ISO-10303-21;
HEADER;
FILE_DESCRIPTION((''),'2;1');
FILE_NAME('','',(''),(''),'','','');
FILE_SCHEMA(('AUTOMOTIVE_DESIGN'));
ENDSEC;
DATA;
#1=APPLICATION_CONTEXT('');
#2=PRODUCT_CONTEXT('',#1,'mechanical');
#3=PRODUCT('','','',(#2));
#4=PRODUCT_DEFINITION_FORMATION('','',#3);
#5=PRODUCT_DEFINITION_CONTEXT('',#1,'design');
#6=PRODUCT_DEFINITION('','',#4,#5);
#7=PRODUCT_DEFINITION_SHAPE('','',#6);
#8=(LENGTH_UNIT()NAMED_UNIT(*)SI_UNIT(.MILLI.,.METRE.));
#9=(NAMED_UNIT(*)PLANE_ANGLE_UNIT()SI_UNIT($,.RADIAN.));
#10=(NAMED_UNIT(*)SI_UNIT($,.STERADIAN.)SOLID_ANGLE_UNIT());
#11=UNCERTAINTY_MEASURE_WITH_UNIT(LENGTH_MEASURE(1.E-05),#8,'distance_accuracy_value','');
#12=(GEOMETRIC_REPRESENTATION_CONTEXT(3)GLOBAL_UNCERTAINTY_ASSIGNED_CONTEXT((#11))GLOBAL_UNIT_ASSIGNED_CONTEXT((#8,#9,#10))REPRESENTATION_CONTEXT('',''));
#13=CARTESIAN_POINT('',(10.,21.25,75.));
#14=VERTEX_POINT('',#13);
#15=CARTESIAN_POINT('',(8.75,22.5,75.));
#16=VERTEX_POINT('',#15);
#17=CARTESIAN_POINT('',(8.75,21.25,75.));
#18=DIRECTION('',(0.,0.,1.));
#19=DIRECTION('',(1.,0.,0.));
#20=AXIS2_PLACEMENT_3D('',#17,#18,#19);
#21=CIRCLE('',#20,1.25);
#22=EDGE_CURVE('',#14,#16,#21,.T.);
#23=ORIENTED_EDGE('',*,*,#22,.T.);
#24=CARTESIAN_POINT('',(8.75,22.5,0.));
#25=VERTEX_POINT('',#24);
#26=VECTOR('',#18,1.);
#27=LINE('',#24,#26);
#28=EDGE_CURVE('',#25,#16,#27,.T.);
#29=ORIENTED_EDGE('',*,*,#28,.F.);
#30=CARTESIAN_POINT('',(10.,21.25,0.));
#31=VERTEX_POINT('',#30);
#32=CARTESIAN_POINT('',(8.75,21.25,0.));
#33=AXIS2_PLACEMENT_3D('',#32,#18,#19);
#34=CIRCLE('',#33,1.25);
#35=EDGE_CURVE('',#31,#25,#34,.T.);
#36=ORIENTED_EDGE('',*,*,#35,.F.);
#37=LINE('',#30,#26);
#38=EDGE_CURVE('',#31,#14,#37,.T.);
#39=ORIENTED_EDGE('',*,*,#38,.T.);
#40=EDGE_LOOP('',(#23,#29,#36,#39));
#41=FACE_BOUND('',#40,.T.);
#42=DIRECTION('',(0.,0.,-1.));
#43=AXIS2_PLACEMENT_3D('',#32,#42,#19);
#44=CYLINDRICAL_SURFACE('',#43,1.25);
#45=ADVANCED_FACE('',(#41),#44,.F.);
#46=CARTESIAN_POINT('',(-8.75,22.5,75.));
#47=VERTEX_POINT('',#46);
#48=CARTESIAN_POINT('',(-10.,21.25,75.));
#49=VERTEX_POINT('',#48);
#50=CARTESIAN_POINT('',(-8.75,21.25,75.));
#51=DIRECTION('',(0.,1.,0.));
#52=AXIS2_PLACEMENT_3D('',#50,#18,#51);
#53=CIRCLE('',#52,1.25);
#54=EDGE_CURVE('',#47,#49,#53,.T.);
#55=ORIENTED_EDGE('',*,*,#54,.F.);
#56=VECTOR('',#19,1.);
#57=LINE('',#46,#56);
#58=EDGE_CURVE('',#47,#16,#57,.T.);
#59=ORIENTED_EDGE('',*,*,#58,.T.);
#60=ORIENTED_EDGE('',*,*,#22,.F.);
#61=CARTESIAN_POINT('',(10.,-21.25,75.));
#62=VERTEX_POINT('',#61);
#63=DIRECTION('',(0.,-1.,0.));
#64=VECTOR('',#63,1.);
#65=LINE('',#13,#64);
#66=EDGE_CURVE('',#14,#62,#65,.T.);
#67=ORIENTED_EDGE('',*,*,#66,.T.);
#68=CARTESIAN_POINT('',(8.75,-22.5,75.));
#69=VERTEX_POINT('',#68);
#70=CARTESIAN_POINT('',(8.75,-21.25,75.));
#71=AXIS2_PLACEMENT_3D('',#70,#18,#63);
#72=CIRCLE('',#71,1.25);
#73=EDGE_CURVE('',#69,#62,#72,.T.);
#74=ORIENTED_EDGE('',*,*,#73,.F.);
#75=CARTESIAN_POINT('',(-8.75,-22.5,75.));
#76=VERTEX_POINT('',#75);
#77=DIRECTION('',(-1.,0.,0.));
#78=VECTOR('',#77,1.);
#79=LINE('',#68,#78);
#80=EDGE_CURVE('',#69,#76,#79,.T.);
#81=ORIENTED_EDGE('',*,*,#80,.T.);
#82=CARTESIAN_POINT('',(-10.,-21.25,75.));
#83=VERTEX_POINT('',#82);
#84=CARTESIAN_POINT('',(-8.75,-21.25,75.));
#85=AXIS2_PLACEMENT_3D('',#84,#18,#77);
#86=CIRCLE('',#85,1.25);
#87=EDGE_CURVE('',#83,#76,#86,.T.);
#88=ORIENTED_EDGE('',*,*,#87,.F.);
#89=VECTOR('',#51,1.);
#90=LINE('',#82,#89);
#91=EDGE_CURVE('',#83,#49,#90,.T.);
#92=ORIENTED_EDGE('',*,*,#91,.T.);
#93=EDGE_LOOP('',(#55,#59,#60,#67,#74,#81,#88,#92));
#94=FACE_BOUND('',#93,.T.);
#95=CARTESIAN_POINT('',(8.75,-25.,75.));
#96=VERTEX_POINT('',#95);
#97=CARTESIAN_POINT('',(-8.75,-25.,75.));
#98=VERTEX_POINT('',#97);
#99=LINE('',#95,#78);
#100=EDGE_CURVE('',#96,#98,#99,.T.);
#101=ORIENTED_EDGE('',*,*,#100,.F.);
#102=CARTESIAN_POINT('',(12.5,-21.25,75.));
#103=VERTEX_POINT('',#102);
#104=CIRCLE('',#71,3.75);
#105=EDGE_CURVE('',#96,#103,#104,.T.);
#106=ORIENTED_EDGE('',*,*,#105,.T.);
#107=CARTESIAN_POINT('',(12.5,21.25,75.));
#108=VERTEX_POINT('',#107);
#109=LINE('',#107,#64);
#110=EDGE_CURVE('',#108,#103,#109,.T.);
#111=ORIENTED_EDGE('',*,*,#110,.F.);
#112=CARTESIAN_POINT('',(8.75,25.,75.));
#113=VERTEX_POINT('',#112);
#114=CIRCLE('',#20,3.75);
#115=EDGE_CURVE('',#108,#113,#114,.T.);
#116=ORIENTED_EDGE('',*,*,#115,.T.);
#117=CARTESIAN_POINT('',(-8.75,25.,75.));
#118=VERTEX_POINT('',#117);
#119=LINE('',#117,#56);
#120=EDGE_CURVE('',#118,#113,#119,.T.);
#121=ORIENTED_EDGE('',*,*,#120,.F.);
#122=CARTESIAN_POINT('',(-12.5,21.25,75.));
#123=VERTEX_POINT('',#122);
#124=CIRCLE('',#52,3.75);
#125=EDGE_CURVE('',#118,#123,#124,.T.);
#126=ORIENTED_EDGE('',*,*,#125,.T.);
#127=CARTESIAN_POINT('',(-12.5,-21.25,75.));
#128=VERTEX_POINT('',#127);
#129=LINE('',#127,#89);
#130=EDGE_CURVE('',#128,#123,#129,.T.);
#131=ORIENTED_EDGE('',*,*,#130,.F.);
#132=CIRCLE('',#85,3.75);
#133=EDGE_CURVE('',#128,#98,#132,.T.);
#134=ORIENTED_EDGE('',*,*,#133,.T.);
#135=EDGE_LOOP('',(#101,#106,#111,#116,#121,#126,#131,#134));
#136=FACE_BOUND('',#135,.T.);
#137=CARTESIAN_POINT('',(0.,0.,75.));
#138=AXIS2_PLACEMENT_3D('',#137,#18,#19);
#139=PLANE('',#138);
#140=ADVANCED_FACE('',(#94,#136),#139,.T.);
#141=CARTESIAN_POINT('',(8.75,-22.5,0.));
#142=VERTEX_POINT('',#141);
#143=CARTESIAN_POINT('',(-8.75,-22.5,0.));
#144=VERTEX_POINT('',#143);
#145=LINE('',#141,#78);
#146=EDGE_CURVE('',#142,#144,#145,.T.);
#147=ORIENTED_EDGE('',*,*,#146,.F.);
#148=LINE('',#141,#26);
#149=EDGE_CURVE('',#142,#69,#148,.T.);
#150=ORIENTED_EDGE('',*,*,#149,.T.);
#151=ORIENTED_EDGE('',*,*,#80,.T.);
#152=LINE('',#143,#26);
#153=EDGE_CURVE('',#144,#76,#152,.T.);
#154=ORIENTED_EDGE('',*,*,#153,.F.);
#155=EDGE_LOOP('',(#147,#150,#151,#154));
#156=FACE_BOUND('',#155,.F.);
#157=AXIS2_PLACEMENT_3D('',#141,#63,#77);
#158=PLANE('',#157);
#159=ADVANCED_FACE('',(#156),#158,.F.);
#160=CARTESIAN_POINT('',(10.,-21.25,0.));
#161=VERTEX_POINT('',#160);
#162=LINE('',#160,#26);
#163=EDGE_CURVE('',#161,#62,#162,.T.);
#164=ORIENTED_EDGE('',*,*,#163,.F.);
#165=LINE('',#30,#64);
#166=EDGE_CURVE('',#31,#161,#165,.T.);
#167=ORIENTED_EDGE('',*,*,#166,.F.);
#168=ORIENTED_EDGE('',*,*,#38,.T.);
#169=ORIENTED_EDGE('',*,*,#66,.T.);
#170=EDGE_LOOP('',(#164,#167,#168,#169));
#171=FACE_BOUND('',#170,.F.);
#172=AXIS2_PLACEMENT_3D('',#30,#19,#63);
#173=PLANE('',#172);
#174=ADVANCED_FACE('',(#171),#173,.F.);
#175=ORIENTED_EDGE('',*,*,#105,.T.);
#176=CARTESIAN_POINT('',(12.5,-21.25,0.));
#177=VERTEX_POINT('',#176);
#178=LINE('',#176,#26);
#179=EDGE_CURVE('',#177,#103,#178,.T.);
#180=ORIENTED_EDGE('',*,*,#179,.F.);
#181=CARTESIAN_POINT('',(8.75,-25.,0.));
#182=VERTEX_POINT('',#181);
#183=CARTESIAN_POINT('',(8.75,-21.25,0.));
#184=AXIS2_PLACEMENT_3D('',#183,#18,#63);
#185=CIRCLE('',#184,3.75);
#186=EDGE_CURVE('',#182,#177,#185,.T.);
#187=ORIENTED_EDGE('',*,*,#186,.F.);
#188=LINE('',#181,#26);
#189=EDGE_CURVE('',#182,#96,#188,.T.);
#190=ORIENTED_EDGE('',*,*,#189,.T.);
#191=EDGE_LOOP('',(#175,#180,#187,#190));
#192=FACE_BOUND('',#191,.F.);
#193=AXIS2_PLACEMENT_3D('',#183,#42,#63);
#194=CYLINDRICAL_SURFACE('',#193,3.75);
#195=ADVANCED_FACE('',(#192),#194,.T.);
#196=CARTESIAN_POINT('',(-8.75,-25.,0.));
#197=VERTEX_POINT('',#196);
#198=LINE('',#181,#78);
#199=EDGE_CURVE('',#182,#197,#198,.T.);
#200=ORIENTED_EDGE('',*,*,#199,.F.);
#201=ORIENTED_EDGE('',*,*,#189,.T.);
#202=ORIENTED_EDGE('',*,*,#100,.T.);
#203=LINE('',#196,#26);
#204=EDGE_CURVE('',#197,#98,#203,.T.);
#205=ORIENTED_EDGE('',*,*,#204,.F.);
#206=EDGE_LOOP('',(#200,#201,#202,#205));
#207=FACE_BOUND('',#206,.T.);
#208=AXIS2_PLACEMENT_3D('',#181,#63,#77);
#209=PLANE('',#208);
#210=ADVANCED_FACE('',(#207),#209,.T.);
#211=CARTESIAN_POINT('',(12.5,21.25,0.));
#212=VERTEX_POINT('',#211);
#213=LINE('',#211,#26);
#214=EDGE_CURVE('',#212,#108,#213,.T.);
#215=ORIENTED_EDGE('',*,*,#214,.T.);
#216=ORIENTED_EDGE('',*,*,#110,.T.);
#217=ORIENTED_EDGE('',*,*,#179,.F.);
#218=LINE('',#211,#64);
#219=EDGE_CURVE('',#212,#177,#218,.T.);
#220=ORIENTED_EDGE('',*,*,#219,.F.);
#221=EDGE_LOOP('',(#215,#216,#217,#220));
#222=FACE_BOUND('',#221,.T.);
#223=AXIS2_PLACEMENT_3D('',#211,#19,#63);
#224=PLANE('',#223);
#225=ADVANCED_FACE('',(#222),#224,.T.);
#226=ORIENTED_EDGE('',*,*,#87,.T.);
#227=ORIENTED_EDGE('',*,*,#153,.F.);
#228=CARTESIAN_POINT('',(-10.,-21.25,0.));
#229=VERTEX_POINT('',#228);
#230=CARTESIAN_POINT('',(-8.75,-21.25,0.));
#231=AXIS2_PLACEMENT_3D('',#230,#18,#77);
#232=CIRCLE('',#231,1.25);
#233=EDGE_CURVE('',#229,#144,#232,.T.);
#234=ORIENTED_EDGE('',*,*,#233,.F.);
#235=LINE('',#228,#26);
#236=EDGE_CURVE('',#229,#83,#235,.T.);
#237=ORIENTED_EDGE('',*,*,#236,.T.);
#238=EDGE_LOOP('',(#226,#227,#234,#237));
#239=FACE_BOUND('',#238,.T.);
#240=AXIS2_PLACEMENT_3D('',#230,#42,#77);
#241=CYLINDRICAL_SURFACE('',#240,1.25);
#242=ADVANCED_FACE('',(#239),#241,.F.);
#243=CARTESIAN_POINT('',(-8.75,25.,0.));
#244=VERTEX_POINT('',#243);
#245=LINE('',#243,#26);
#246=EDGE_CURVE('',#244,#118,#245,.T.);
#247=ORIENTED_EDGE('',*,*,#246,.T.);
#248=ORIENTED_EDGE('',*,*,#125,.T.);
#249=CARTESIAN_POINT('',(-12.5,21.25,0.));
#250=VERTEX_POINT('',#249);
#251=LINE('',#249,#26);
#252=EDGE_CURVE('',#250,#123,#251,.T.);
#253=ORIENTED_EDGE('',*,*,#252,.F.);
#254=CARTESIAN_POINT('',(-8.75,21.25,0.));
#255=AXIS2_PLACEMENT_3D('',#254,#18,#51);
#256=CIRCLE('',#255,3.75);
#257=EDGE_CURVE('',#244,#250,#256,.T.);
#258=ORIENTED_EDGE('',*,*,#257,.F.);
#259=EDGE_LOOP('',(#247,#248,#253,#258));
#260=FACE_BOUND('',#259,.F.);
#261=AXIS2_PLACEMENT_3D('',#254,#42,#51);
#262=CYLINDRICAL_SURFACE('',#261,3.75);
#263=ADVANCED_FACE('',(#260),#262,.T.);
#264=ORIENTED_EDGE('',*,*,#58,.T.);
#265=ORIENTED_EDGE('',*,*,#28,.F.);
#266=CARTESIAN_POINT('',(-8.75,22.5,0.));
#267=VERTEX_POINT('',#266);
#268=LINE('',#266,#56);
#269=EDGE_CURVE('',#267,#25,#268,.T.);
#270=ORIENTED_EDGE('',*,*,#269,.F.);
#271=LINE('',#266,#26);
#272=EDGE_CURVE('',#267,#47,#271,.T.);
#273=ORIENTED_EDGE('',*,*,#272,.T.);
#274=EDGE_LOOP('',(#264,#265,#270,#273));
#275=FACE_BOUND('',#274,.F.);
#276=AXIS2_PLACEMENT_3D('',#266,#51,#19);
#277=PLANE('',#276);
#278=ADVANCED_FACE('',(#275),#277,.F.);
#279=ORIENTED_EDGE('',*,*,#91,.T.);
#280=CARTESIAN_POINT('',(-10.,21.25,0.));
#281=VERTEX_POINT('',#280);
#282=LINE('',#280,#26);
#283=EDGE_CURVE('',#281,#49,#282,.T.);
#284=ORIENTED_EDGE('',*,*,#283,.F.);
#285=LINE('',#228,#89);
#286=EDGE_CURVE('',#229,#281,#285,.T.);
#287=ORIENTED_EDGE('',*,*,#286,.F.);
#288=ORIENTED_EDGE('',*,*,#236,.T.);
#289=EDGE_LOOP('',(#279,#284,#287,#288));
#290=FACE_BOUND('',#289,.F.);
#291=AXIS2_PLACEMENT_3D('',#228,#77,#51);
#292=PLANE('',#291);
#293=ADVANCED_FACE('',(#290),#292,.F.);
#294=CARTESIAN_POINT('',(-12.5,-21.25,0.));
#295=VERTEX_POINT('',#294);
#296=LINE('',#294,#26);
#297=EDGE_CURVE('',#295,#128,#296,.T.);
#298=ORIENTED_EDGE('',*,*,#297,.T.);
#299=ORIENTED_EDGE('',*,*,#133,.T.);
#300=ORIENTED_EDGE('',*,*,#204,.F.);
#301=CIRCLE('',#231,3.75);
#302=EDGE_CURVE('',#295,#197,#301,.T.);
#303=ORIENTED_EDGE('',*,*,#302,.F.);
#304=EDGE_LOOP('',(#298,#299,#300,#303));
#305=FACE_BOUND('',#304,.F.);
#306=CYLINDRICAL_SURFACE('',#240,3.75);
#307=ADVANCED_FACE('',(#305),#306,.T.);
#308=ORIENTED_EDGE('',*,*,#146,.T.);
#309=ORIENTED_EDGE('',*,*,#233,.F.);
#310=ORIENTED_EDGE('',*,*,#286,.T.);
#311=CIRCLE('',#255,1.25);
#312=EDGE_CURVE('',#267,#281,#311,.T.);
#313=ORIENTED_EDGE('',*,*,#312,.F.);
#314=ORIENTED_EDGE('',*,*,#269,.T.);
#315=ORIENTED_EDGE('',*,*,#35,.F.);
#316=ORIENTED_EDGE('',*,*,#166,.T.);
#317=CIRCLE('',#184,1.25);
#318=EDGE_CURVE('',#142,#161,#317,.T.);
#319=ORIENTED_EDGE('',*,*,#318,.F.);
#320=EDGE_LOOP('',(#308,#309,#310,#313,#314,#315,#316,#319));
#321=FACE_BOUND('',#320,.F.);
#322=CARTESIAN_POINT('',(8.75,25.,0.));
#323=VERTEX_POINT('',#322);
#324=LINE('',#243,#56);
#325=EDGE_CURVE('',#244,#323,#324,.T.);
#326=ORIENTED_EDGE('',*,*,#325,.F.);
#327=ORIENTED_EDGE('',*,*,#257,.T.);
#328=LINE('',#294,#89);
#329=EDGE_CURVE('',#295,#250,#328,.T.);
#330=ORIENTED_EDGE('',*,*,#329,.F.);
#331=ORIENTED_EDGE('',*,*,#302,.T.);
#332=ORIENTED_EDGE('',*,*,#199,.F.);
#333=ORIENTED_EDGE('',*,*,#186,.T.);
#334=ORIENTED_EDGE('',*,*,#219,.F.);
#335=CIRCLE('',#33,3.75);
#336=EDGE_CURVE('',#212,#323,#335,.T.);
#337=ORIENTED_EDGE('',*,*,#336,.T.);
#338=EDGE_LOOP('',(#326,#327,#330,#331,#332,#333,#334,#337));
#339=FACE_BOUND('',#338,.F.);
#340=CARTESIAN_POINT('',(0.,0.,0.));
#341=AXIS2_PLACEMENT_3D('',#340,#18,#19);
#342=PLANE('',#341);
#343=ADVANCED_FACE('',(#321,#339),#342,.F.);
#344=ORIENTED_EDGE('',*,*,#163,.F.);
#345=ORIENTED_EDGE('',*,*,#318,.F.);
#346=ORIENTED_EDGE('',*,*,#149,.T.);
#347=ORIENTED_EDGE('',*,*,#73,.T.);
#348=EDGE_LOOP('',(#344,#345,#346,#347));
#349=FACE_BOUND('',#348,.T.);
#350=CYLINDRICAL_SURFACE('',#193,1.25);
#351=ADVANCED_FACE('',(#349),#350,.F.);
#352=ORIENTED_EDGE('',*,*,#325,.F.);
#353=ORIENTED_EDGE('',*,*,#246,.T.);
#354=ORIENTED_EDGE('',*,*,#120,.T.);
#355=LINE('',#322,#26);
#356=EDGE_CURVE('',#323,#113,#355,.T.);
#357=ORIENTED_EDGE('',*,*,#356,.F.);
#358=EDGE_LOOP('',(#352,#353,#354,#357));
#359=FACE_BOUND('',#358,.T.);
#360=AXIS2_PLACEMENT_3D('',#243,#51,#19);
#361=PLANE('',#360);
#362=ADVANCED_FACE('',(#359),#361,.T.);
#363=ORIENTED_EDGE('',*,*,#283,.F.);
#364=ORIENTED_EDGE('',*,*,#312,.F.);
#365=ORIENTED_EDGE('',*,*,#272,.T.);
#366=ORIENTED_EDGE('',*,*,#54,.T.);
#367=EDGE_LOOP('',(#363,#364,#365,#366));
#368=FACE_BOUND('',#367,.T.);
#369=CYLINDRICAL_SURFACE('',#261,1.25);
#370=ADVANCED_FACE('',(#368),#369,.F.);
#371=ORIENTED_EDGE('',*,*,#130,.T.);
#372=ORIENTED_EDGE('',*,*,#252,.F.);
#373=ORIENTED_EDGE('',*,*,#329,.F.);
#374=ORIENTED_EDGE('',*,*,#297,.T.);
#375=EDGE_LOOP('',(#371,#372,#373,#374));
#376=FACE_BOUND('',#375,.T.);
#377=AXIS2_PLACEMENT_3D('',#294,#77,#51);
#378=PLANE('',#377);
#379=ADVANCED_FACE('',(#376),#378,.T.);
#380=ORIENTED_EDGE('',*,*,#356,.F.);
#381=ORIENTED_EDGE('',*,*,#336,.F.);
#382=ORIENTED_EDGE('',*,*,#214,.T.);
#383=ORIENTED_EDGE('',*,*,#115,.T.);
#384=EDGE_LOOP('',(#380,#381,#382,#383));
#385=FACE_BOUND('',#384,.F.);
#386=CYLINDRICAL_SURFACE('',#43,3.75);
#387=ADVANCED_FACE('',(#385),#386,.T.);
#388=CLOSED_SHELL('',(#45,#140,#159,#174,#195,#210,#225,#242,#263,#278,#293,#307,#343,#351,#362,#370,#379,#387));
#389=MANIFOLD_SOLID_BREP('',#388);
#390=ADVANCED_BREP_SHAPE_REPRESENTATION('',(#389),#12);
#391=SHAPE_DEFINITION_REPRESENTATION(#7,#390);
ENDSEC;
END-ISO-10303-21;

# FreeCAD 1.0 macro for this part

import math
import FreeCAD as App
import Part
import Sketcher

V = App.Vector
Q = App.Units.Quantity

doc = App.newDocument("Part")
body = doc.addObject("PartDesign::Body", "Body")

sketch1 = body.newObject("Sketcher::SketchObject", "Sketch")
sketch1.AttachmentSupport = (doc.getObject("XY_Plane"), [""])
sketch1.MapMode = "FlatFace"
sketch1.addGeometry(Part.LineSegment(V(-12.5, 21.2, 0), V(-12.5, -21.2, 0)), False)
sketch1.addGeometry(Part.ArcOfCircle(Part.Circle(V(-8.8, -21.2, 0), V(0, 0, 1), 3.8), math.radians(180), math.radians(270)), False)
sketch1.addGeometry(Part.LineSegment(V(-8.8, -25, 0), V(8.8, -25, 0)), False)
sketch1.addGeometry(Part.ArcOfCircle(Part.Circle(V(8.8, -21.2, 0), V(0, 0, 1), 3.8), math.radians(-90), math.radians(0)), False)
sketch1.addGeometry(Part.LineSegment(V(12.5, -21.2, 0), V(12.5, 21.2, 0)), False)
sketch1.addGeometry(Part.ArcOfCircle(Part.Circle(V(8.8, 21.2, 0), V(0, 0, 1), 3.8), math.radians(0), math.radians(90)), False)
sketch1.addGeometry(Part.LineSegment(V(8.8, 25, 0), V(-8.8, 25, 0)), False)
sketch1.addGeometry(Part.ArcOfCircle(Part.Circle(V(-8.8, 21.2, 0), V(0, 0, 1), 3.8), math.radians(90), math.radians(180)), False)
sketch1.addGeometry(Part.ArcOfCircle(Part.Circle(V(-8.8, 21.2, 0), V(0, 0, 1), 1.2), math.radians(90), math.radians(180)), False)
sketch1.addGeometry(Part.LineSegment(V(-8.8, 22.5, 0), V(8.8, 22.5, 0)), False)
sketch1.addGeometry(Part.ArcOfCircle(Part.Circle(V(8.8, 21.2, 0), V(0, 0, 1), 1.2), math.radians(0), math.radians(90)), False)
sketch1.addGeometry(Part.LineSegment(V(10, 21.2, 0), V(10, -21.2, 0)), False)
sketch1.addGeometry(Part.ArcOfCircle(Part.Circle(V(8.8, -21.2, 0), V(0, 0, 1), 1.2), math.radians(-90), math.radians(0)), False)
sketch1.addGeometry(Part.LineSegment(V(8.8, -22.5, 0), V(-8.8, -22.5, 0)), False)
sketch1.addGeometry(Part.ArcOfCircle(Part.Circle(V(-8.8, -21.2, 0), V(0, 0, 1), 1.2), math.radians(180), math.radians(270)), False)
sketch1.addGeometry(Part.LineSegment(V(-10, -21.2, 0), V(-10, 21.2, 0)), False)
sketch1.addConstraint(Sketcher.Constraint("Tangent", 0, 2, 1, 1))
sketch1.addConstraint(Sketcher.Constraint("Tangent", 1, 2, 2, 1))
sketch1.addConstraint(Sketcher.Constraint("Tangent", 2, 2, 3, 1))
sketch1.addConstraint(Sketcher.Constraint("Tangent", 3, 2, 4, 1))
sketch1.addConstraint(Sketcher.Constraint("Tangent", 4, 2, 5, 1))
sketch1.addConstraint(Sketcher.Constraint("Tangent", 5, 2, 6, 1))
sketch1.addConstraint(Sketcher.Constraint("Tangent", 6, 2, 7, 1))
sketch1.addConstraint(Sketcher.Constraint("Tangent", 7, 2, 0, 1))
sketch1.addConstraint(Sketcher.Constraint("Tangent", 8, 1, 9, 1))
sketch1.addConstraint(Sketcher.Constraint("Tangent", 9, 2, 10, 2))
sketch1.addConstraint(Sketcher.Constraint("Tangent", 10, 1, 11, 1))
sketch1.addConstraint(Sketcher.Constraint("Tangent", 11, 2, 12, 2))
sketch1.addConstraint(Sketcher.Constraint("Tangent", 12, 1, 13, 1))
sketch1.addConstraint(Sketcher.Constraint("Tangent", 13, 2, 14, 2))
sketch1.addConstraint(Sketcher.Constraint("Tangent", 14, 1, 15, 1))
sketch1.addConstraint(Sketcher.Constraint("Tangent", 15, 2, 8, 2))
sketch1.addConstraint(Sketcher.Constraint("Vertical", 0))
sketch1.addConstraint(Sketcher.Constraint("Horizontal", 2))
sketch1.addConstraint(Sketcher.Constraint("Vertical", 4))
sketch1.addConstraint(Sketcher.Constraint("Horizontal", 6))
sketch1.addConstraint(Sketcher.Constraint("Horizontal", 9))
sketch1.addConstraint(Sketcher.Constraint("Vertical", 11))
sketch1.addConstraint(Sketcher.Constraint("Horizontal", 13))
sketch1.addConstraint(Sketcher.Constraint("Vertical", 15))
sketch1.addConstraint(Sketcher.Constraint("Coincident", 8, 3, 7, 3))
sketch1.addConstraint(Sketcher.Constraint("Coincident", 10, 3, 5, 3))
sketch1.addConstraint(Sketcher.Constraint("Coincident", 12, 3, 3, 3))
sketch1.addConstraint(Sketcher.Constraint("Equal", 1, 3))
sketch1.addConstraint(Sketcher.Constraint("Equal", 3, 5))
sketch1.addConstraint(Sketcher.Constraint("Equal", 5, 7))
sketch1.addConstraint(Sketcher.Constraint("Equal", 12, 14))
sketch1.addConstraint(Sketcher.Constraint("Symmetric", 1, 3, 5, 3, -1, 1))
sketch1.addConstraint(Sketcher.Constraint("Radius", 1, Q("3.75 mm")))
sketch1.addConstraint(Sketcher.Constraint("Radius", 8, Q("1.25 mm")))
sketch1.addConstraint(Sketcher.Constraint("DistanceY", 1, 2, -1, 1, Q("25 mm")))
sketch1.addConstraint(Sketcher.Constraint("DistanceX", 0, 2, -1, 1, Q("12.5 mm")))
pad1 = body.newObject("PartDesign::Pad", "Pad")
pad1.Profile = sketch1
pad1.Length = 75

doc.recompute()
